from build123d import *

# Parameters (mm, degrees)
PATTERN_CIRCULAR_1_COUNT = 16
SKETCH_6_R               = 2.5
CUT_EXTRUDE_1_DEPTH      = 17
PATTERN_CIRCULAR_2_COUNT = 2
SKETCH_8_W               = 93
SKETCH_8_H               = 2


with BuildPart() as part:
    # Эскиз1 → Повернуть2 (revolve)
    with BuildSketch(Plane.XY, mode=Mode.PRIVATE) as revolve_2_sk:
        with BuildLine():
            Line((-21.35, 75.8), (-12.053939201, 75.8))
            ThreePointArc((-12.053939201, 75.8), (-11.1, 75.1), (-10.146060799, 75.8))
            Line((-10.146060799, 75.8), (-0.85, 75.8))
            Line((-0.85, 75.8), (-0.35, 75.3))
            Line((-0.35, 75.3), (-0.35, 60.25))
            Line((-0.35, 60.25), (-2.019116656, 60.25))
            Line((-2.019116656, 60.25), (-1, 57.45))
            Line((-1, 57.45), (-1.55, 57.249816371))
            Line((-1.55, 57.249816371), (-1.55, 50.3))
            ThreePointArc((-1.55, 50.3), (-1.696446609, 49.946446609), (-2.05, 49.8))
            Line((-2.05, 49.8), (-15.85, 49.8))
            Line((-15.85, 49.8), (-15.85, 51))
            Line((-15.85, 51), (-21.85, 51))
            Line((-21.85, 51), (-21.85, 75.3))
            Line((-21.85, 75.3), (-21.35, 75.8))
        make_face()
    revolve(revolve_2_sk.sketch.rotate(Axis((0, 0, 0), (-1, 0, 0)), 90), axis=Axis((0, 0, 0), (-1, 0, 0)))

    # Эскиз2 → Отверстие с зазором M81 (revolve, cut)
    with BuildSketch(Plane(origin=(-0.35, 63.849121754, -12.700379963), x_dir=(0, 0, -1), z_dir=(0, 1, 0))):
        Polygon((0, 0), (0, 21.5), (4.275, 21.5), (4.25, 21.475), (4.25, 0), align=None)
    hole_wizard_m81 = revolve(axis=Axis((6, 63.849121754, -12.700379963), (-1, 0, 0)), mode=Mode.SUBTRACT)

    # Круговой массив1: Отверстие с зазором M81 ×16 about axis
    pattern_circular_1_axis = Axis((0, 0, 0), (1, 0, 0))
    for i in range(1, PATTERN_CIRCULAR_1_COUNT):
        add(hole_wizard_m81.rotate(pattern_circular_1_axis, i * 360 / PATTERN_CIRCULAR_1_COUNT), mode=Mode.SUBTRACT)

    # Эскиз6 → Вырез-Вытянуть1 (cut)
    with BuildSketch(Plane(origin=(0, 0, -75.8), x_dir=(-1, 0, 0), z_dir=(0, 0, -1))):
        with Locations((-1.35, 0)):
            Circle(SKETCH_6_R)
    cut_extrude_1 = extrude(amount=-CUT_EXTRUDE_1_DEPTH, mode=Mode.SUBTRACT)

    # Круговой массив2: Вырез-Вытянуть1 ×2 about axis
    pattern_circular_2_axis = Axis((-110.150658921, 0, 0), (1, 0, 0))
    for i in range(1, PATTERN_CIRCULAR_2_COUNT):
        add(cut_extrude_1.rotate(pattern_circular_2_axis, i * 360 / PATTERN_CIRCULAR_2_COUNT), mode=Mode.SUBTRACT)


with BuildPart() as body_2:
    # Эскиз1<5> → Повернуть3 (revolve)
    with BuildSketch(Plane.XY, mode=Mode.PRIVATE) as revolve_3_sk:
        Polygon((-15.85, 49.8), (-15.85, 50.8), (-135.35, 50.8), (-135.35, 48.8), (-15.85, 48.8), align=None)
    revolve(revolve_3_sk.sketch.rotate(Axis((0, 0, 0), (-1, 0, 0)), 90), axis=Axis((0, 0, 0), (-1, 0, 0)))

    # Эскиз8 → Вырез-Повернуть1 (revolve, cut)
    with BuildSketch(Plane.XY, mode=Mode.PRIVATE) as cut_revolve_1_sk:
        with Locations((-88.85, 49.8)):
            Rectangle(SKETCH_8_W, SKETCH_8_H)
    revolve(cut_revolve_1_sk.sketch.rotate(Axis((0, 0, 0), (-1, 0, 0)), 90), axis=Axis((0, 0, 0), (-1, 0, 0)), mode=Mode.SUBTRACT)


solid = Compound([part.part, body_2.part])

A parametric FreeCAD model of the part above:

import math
import FreeCAD as App
import Part
import Sketcher
Q = App.Units.Quantity

doc = App.newDocument("Part")
body = doc.addObject("PartDesign::Body", "Body")

sketch1 = body.newObject("Sketcher::SketchObject", "Sketch")
sketch1.AttachmentSupport = (doc.getObject("XY_Plane"), [""])
sketch1.MapMode = "FlatFace"
sketch1.addGeometry(Part.LineSegment(App.Vector(-12.05, 75.8, 0), App.Vector(-21.35, 75.8, 0)), False)
sketch1.addGeometry(Part.LineSegment(App.Vector(-21.35, 75.8, 0), App.Vector(-21.85, 75.3, 0)), False)
sketch1.addGeometry(Part.LineSegment(App.Vector(-21.85, 75.3, 0), App.Vector(-21.85, 51, 0)), False)
sketch1.addGeometry(Part.LineSegment(App.Vector(-21.85, 51, 0), App.Vector(-15.85, 51, 0)), False)
sketch1.addGeometry(Part.LineSegment(App.Vector(-15.85, 51, 0), App.Vector(-15.85, 49.8, 0)), False)
sketch1.addGeometry(Part.LineSegment(App.Vector(-15.85, 49.8, 0), App.Vector(-2.05, 49.8, 0)), False)
sketch1.addGeometry(Part.ArcOfCircle(Part.Circle(App.Vector(-2.05, 50.3, 0), App.Vector(0, 0, 1), 0.5), math.radians(-90), math.radians(0)), False)
sketch1.addGeometry(Part.LineSegment(App.Vector(-1.55, 50.3, 0), App.Vector(-1.55, 57.25, 0)), False)
sketch1.addGeometry(Part.LineSegment(App.Vector(-1.55, 57.25, 0), App.Vector(-1, 57.45, 0)), False)
sketch1.addGeometry(Part.LineSegment(App.Vector(-1, 57.45, 0), App.Vector(-2.02, 60.25, 0)), False)
sketch1.addGeometry(Part.LineSegment(App.Vector(-2.02, 60.25, 0), App.Vector(-0.35, 60.25, 0)), False)
sketch1.addGeometry(Part.LineSegment(App.Vector(-0.35, 60.25, 0), App.Vector(-0.35, 75.3, 0)), False)
sketch1.addGeometry(Part.LineSegment(App.Vector(-0.35, 75.3, 0), App.Vector(-0.85, 75.8, 0)), False)
sketch1.addGeometry(Part.LineSegment(App.Vector(-0.85, 75.8, 0), App.Vector(-10.15, 75.8, 0)), False)
sketch1.addGeometry(Part.ArcOfCircle(Part.Circle(App.Vector(-11.1, 76.1, 0), App.Vector(0, 0, 1), 1), math.radians(-163), math.radians(-17)), False)
sketch1.addConstraint(Sketcher.Constraint("Coincident", 0, 2, 1, 1))
sketch1.addConstraint(Sketcher.Constraint("Coincident", 1, 2, 2, 1))
sketch1.addConstraint(Sketcher.Constraint("Coincident", 2, 2, 3, 1))
sketch1.addConstraint(Sketcher.Constraint("Coincident", 3, 2, 4, 1))
sketch1.addConstraint(Sketcher.Constraint("Coincident", 4, 2, 5, 1))
sketch1.addConstraint(Sketcher.Constraint("Tangent", 5, 2, 6, 1))
sketch1.addConstraint(Sketcher.Constraint("Tangent", 6, 2, 7, 1))
sketch1.addConstraint(Sketcher.Constraint("Coincident", 7, 2, 8, 1))
sketch1.addConstraint(Sketcher.Constraint("Coincident", 8, 2, 9, 1))
sketch1.addConstraint(Sketcher.Constraint("Coincident", 9, 2, 10, 1))
sketch1.addConstraint(Sketcher.Constraint("Coincident", 10, 2, 11, 1))
sketch1.addConstraint(Sketcher.Constraint("Coincident", 11, 2, 12, 1))
sketch1.addConstraint(Sketcher.Constraint("Coincident", 12, 2, 13, 1))
sketch1.addConstraint(Sketcher.Constraint("Coincident", 13, 2, 14, 2))
sketch1.addConstraint(Sketcher.Constraint("Coincident", 14, 1, 0, 1))
sketch1.addConstraint(Sketcher.Constraint("Horizontal", 0))
sketch1.addConstraint(Sketcher.Constraint("Vertical", 2))
sketch1.addConstraint(Sketcher.Constraint("Horizontal", 3))
sketch1.addConstraint(Sketcher.Constraint("Vertical", 4))
sketch1.addConstraint(Sketcher.Constraint("Horizontal", 5))
sketch1.addConstraint(Sketcher.Constraint("Vertical", 7))
sketch1.addConstraint(Sketcher.Constraint("Horizontal", 10))
sketch1.addConstraint(Sketcher.Constraint("Vertical", 11))
sketch1.addConstraint(Sketcher.Constraint("Horizontal", 13))
sketch1.addConstraint(Sketcher.Constraint("Perpendicular", 8, 9))
sketch1.addConstraint(Sketcher.Constraint("Perpendicular", 1, 12))
sketch1.addConstraint(Sketcher.Constraint("Horizontal", 1, 2, 11, 2))
sketch1.addConstraint(Sketcher.Constraint("Horizontal", 0, 2, 12, 2))
sketch1.addConstraint(Sketcher.Constraint("Equal", 0, 13))
sketch1.addConstraint(Sketcher.Constraint("Equal", 1, 12))
sketch1.addConstraint(Sketcher.Constraint("Radius", 14, Q("1 mm")))
sketch1.addConstraint(Sketcher.Constraint("Radius", 6, Q("0.5 mm")))
sketch1.addConstraint(Sketcher.Constraint("DistanceX", 3, 1, 3, 2, Q("6 mm")))
sketch1.addConstraint(Sketcher.Constraint("Angle", 8, Q("20 deg")))
sketch1.addConstraint(Sketcher.Constraint("DistanceX", 5, 1, 5, 2, Q("13.8 mm")))
sketch1.addConstraint(Sketcher.Constraint("DistanceY", 2, 2, 2, 1, Q("24.3 mm")))
sketch1.addConstraint(Sketcher.Constraint("DistanceY", 4, 2, 4, 1, Q("1.2 mm")))
sketch1.addConstraint(Sketcher.Constraint("DistanceY", -1, 1, 2, 2, Q("51 mm")))
sketch1.addConstraint(Sketcher.Constraint("DistanceX", 8, 2, -1, 1, Q("1 mm")))
sketch1.addConstraint(Sketcher.Constraint("DistanceY", 4, 2, 0, 2, Q("26 mm")))
sketch1.addConstraint(Sketcher.Constraint("DistanceY", 11, 1, 11, 2, Q("15.05 mm")))
sketch1.addConstraint(Sketcher.Constraint("DistanceX", 14, 3, -1, 1, Q("11.1 mm")))
sketch1.addConstraint(Sketcher.Constraint("DistanceY", -1, 1, 14, 3, Q("76.1 mm")))
sketch1.addConstraint(Sketcher.Constraint("DistanceY", 8, 2, 9, 2, Q("2.8 mm")))
sketch1.addConstraint(Sketcher.Constraint("DistanceX", 7, 2, 10, 2, Q("1.2 mm")))
revolution = body.newObject("PartDesign::Revolution", "Revolution")
revolution.Profile = sketch1
revolution.ReferenceAxis = (sketch1, ["H_Axis"])
revolution.Angle = 360

sketch2 = body.newObject("Sketcher::SketchObject", "Sketch001")
sketch2.AttachmentSupport = (doc.getObject("XZ_Plane"), [""])
sketch2.MapMode = "FlatFace"
sketch2.AttachmentOffset = App.Placement(App.Vector(0, 0, -63.849122), App.Rotation())
sketch2.addGeometry(Part.LineSegment(App.Vector(-21.85, -12.7, 0), App.Vector(-0.35, -12.7, 0)), False)
sketch2.addGeometry(Part.LineSegment(App.Vector(-0.35, -12.7, 0), App.Vector(-0.35, -16.95, 0)), False)
sketch2.addGeometry(Part.LineSegment(App.Vector(-0.35, -16.95, 0), App.Vector(-21.825, -16.95, 0)), False)
sketch2.addGeometry(Part.LineSegment(App.Vector(-21.825, -16.95, 0), App.Vector(-21.85, -16.975, 0)), False)
sketch2.addGeometry(Part.LineSegment(App.Vector(-21.85, -16.975, 0), App.Vector(-21.85, -12.7, 0)), False)
sketch2.addGeometry(Part.LineSegment(App.Vector(-0.35, -12.7, 0), App.Vector(-21.85, -12.7, 0)), True)
sketch2.addConstraint(Sketcher.Constraint("Coincident", 0, 2, 1, 1))
sketch2.addConstraint(Sketcher.Constraint("Coincident", 1, 2, 2, 1))
sketch2.addConstraint(Sketcher.Constraint("Coincident", 2, 2, 3, 1))
sketch2.addConstraint(Sketcher.Constraint("Coincident", 3, 2, 4, 1))
sketch2.addConstraint(Sketcher.Constraint("Coincident", 4, 2, 0, 1))
sketch2.addConstraint(Sketcher.Constraint("Horizontal", 0))
sketch2.addConstraint(Sketcher.Constraint("Vertical", 1))
sketch2.addConstraint(Sketcher.Constraint("Horizontal", 2))
sketch2.addConstraint(Sketcher.Constraint("Vertical", 4))
sketch2.addConstraint(Sketcher.Constraint("Horizontal", 5))
sketch2.addConstraint(Sketcher.Constraint("Coincident", 5, 1, 0, 2))
sketch2.addConstraint(Sketcher.Constraint("Vertical", 3, 2, 5, 2))
sketch2.addConstraint(Sketcher.Constraint("Angle", 3, Q("-135 deg")))
sketch2.addConstraint(Sketcher.Constraint("DistanceX", 0, 1, 0, 2, Q("21.5 mm")))
sketch2.addConstraint(Sketcher.Constraint("DistanceY", 1, 2, 1, 1, Q("4.25 mm")))
sketch2.addConstraint(Sketcher.Constraint("DistanceX", 2, 2, 2, 1, Q("21.475 mm")))
sketch2.addConstraint(Sketcher.Constraint("DistanceX", 0, 2, -1, 1, Q("0.35 mm")))
sketch2.addConstraint(Sketcher.Constraint("DistanceY", 0, 2, -1, 1, Q("12.70038 mm")))
groove = body.newObject("PartDesign::Groove", "Groove")
groove.Profile = sketch2
groove.ReferenceAxis = (sketch2, ["Axis0"])
groove.Angle = 360
doc.recompute()

polarpattern = body.newObject("PartDesign::PolarPattern", "PolarPattern")
polarpattern.Originals = [groove]
polarpattern.Axis = (doc.getObject("X_Axis"), [""])
polarpattern.Angle = 360
polarpattern.Occurrences = 16
body.Tip = polarpattern

sketch3 = body.newObject("Sketcher::SketchObject", "Sketch002")
sketch3.AttachmentSupport = (doc.getObject("XY_Plane"), [""])
sketch3.MapMode = "FlatFace"
sketch3.AttachmentOffset = App.Placement(App.Vector(0, 0, -75.8), App.Rotation())
sketch3.addGeometry(Part.Circle(App.Vector(1.4, 0, 0), App.Vector(0, 0, 1), 2.5), False)
sketch3.addConstraint(Sketcher.Constraint("PointOnObject", 0, 3, -1))
sketch3.addConstraint(Sketcher.Constraint("Diameter", 0, Q("5 mm")))
sketch3.addConstraint(Sketcher.Constraint("DistanceX", -1, 1, 0, 3, Q("1.35 mm")))
pocket1 = body.newObject("PartDesign::Pocket", "Pocket")
pocket1.Profile = sketch3
pocket1.Length = 17
pocket1.Reversed = True
doc.recompute()

polarpattern2 = body.newObject("PartDesign::PolarPattern", "PolarPattern001")
polarpattern2.Originals = [pocket1]
polarpattern2.Axis = (doc.getObject("X_Axis"), [""])
polarpattern2.Angle = 360
polarpattern2.Occurrences = 2
body.Tip = polarpattern2
body2 = doc.addObject("PartDesign::Body", "Body001")

sketch4 = body2.newObject("Sketcher::SketchObject", "Sketch003")
sketch4.AttachmentSupport = (doc.getObject("XY_Plane001"), [""])
sketch4.MapMode = "FlatFace"
sketch4.addGeometry(Part.LineSegment(App.Vector(-15.8, 50.8, 0), App.Vector(-135.3, 50.8, 0)), False)
sketch4.addGeometry(Part.LineSegment(App.Vector(-135.3, 50.8, 0), App.Vector(-135.3, 48.8, 0)), False)
sketch4.addGeometry(Part.LineSegment(App.Vector(-135.3, 48.8, 0), App.Vector(-15.8, 48.8, 0)), False)
sketch4.addGeometry(Part.LineSegment(App.Vector(-15.8, 48.8, 0), App.Vector(-15.8, 50.8, 0)), False)
sketch4.addConstraint(Sketcher.Constraint("Coincident", 0, 2, 1, 1))
sketch4.addConstraint(Sketcher.Constraint("Coincident", 1, 2, 2, 1))
sketch4.addConstraint(Sketcher.Constraint("Coincident", 2, 2, 3, 1))
sketch4.addConstraint(Sketcher.Constraint("Coincident", 3, 2, 0, 1))
sketch4.addConstraint(Sketcher.Constraint("Horizontal", 0))
sketch4.addConstraint(Sketcher.Constraint("Vertical", 1))
sketch4.addConstraint(Sketcher.Constraint("Horizontal", 2))
sketch4.addConstraint(Sketcher.Constraint("Vertical", 3))
sketch4.addConstraint(Sketcher.Constraint("DistanceY", 1, 2, 1, 1, Q("2 mm")))
sketch4.addConstraint(Sketcher.Constraint("DistanceX", 0, 2, 0, 1, Q("119.5 mm")))
sketch4.addConstraint(Sketcher.Constraint("DistanceY", -1, 1, 0, 2, Q("50.8 mm")))
sketch4.addConstraint(Sketcher.Constraint("DistanceX", 0, 2, -1, 1, Q("135.35 mm")))
revolution2 = body2.newObject("PartDesign::Revolution", "Revolution001")
revolution2.Profile = sketch4
revolution2.ReferenceAxis = (sketch4, ["H_Axis"])
revolution2.Angle = 360

sketch5 = body2.newObject("Sketcher::SketchObject", "Sketch004")
sketch5.AttachmentSupport = (doc.getObject("XY_Plane001"), [""])
sketch5.MapMode = "FlatFace"
sketch5.addGeometry(Part.LineSegment(App.Vector(-135.3, 50.8, 0), App.Vector(-135.3, 48.8, 0)), False)
sketch5.addGeometry(Part.LineSegment(App.Vector(-135.3, 48.8, 0), App.Vector(-42.4, 48.8, 0)), False)
sketch5.addGeometry(Part.LineSegment(App.Vector(-42.4, 48.8, 0), App.Vector(-42.4, 50.8, 0)), False)
sketch5.addGeometry(Part.LineSegment(App.Vector(-42.4, 50.8, 0), App.Vector(-135.3, 50.8, 0)), False)
sketch5.addConstraint(Sketcher.Constraint("Coincident", 0, 2, 1, 1))
sketch5.addConstraint(Sketcher.Constraint("Coincident", 1, 2, 2, 1))
sketch5.addConstraint(Sketcher.Constraint("Coincident", 2, 2, 3, 1))
sketch5.addConstraint(Sketcher.Constraint("Coincident", 3, 2, 0, 1))
sketch5.addConstraint(Sketcher.Constraint("Vertical", 0))
sketch5.addConstraint(Sketcher.Constraint("Horizontal", 1))
sketch5.addConstraint(Sketcher.Constraint("Vertical", 2))
sketch5.addConstraint(Sketcher.Constraint("Horizontal", 3))
sketch5.addConstraint(Sketcher.Constraint("DistanceX", 1, 1, 1, 2, Q("93 mm")))
sketch5.addConstraint(Sketcher.Constraint("DistanceY", 0, 2, 0, 1, Q("2 mm")))
sketch5.addConstraint(Sketcher.Constraint("DistanceY", -1, 1, 0, 2, Q("48.8 mm")))
sketch5.addConstraint(Sketcher.Constraint("DistanceX", 0, 2, -1, 1, Q("135.35 mm")))
groove2 = body2.newObject("PartDesign::Groove", "Groove001")
groove2.Profile = sketch5
groove2.ReferenceAxis = (sketch5, ["H_Axis"])
groove2.Angle = 360

doc.recompute()
